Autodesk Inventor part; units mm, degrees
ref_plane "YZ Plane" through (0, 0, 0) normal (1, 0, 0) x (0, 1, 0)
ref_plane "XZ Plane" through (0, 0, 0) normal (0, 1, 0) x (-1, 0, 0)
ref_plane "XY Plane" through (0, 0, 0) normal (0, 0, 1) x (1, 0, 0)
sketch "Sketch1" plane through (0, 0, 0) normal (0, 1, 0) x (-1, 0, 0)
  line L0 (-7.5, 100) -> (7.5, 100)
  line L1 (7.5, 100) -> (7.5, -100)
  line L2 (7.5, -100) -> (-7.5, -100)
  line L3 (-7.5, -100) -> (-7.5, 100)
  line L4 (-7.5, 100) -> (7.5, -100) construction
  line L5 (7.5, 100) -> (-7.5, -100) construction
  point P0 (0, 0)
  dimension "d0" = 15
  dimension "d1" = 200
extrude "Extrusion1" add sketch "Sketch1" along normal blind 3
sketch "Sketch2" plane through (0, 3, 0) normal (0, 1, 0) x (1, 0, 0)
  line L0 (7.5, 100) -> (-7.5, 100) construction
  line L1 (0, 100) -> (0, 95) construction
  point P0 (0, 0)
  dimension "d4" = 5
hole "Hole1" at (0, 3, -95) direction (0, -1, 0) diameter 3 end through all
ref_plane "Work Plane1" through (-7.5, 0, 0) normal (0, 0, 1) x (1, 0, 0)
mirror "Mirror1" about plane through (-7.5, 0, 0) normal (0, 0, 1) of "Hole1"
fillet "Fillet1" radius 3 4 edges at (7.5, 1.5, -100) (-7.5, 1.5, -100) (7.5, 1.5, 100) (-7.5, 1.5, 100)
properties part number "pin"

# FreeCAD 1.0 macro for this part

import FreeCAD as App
import Part
import Sketcher

V = App.Vector


def edges_at(feature, points):
    """Names of the edges that pass closest to the given points."""
    edges = feature.Shape.Edges
    near = lambda p: min(range(len(edges)), key=lambda i: edges[i].distToShape(Part.Vertex(*p))[0])
    return sorted({f"Edge{near(p) + 1}" for p in points})

doc = App.newDocument("Part")
body = doc.addObject("PartDesign::Body", "Body")

# Sketch on XZ plane
sketch1 = body.newObject("Sketcher::SketchObject", "Sketch")
sketch1.AttachmentSupport = (doc.getObject("XZ_Plane"), [""])
sketch1.MapMode = "FlatFace"
sketch1.addGeometry([
    Part.LineSegment(V(-7.5, 100, 0), V(7.5, 100, 0)),
    Part.LineSegment(V(7.5, 100, 0), V(7.5, -100, 0)),
    Part.LineSegment(V(7.5, -100, 0), V(-7.5, -100, 0)),
    Part.LineSegment(V(-7.5, -100, 0), V(-7.5, 100, 0)),
], False)
sketch1.addConstraint([
    Sketcher.Constraint("Coincident", 0, 2, 1, 1),
    Sketcher.Constraint("Coincident", 1, 2, 2, 1),
    Sketcher.Constraint("Coincident", 2, 2, 3, 1),
    Sketcher.Constraint("Coincident", 3, 2, 0, 1),
    Sketcher.Constraint("Horizontal", 0),
    Sketcher.Constraint("Vertical", 1),
    Sketcher.Constraint("Horizontal", 2),
    Sketcher.Constraint("Vertical", 3),
    Sketcher.Constraint("Symmetric", 0, 2, 2, 2, -1, 1),
    Sketcher.Constraint("DistanceX", 0, 1, 0, 2, 15.0),
    Sketcher.Constraint("DistanceY", 1, 2, 1, 1, 200.0),
])
pad1 = body.newObject("PartDesign::Pad", "Pad")
pad1.Profile = sketch1
pad1.Length = 3
pad1.Reversed = True

# Sketch on XZ plane
sketch2 = body.newObject("Sketcher::SketchObject", "Sketch001")
sketch2.AttachmentSupport = (doc.getObject("XZ_Plane"), [""])
sketch2.MapMode = "FlatFace"
sketch2.AttachmentOffset = App.Placement(V(0, 0, -3), App.Rotation())
sketch2.addGeometry(Part.Circle(V(0, -95, 0), V(0, 0, 1), 1.5), False)
sketch2.addConstraint([
    Sketcher.Constraint("PointOnObject", 0, 3, -2),
    Sketcher.Constraint("Diameter", 0, 3.0),
    Sketcher.Constraint("DistanceY", 0, 3, -1, 1, 95.0),
])
doc.recompute()
hole = body.newObject("PartDesign::Hole", "Hole")
hole.Profile = sketch2
hole.ThreadType = "None"
hole.Diameter = 3
hole.DepthType = "ThroughAll"
hole.Reversed = True
doc.recompute()

mirrored = body.newObject("PartDesign::Mirrored", "Mirrored")
mirrored.Originals = [hole]
mirrored.MirrorPlane = (doc.getObject("XY_Plane"), [""])
body.Tip = mirrored
doc.recompute()

fillet = body.newObject("PartDesign::Fillet", "Fillet")
fillet.Base = (mirrored, edges_at(mirrored, [
    (7.5, 1.5, -100),
    (-7.5, 1.5, -100),
    (7.5, 1.5, 100),
    (-7.5, 1.5, 100),
]))
fillet.Radius = 3

doc.recompute()
